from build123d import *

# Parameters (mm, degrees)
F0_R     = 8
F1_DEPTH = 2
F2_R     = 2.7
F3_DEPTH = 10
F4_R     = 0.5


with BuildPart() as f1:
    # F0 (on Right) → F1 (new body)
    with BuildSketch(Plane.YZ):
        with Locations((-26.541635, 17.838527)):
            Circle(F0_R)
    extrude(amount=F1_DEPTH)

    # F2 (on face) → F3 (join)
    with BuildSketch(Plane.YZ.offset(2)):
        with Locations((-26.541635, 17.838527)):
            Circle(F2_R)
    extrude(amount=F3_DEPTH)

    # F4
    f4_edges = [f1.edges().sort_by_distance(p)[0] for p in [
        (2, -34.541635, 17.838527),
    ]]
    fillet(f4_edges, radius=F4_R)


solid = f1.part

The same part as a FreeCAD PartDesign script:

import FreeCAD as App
import Part
import Sketcher

V = App.Vector


def edges_at(feature, points):
    """Names of the edges that pass closest to the given points."""
    edges = feature.Shape.Edges
    near = lambda p: min(range(len(edges)), key=lambda i: edges[i].distToShape(Part.Vertex(*p))[0])
    return sorted({f"Edge{near(p) + 1}" for p in points})

doc = App.newDocument("Part")
body = doc.addObject("PartDesign::Body", "Body")

sketch1 = body.newObject("Sketcher::SketchObject", "Sketch")
sketch1.AttachmentSupport = (doc.getObject("YZ_Plane"), [""])
sketch1.MapMode = "FlatFace"
sketch1.addGeometry(Part.Circle(V(-27, 18, 0), V(0, 0, 1), 8), False)
sketch1.addConstraint([
    Sketcher.Constraint("Diameter", 0, 16.0),
    Sketcher.Constraint("DistanceX", 0, 3, -1, 1, 26.541635),
    Sketcher.Constraint("DistanceY", -1, 1, 0, 3, 17.838527),
])
pad1 = body.newObject("PartDesign::Pad", "Pad")
pad1.Profile = sketch1
pad1.Length = 2

sketch2 = body.newObject("Sketcher::SketchObject", "Sketch001")
sketch2.AttachmentSupport = (doc.getObject("YZ_Plane"), [""])
sketch2.MapMode = "FlatFace"
sketch2.AttachmentOffset = App.Placement(V(0, 0, 2), App.Rotation())
sketch2.addGeometry(Part.Circle(V(-26.5, 17.8, 0), V(0, 0, 1), 2.7), False)
sketch2.addConstraint([
    Sketcher.Constraint("Diameter", 0, 5.4),
    Sketcher.Constraint("DistanceX", 0, 3, -1, 1, 26.541635),
    Sketcher.Constraint("DistanceY", -1, 1, 0, 3, 17.838527),
])
pad2 = body.newObject("PartDesign::Pad", "Pad001")
pad2.Profile = sketch2
pad2.Length = 10
doc.recompute()

fillet = body.newObject("PartDesign::Fillet", "Fillet")
fillet.Base = (pad2, edges_at(pad2, [(2, -34.542, 17.839)]))
fillet.Radius = 0.5

doc.recompute()
